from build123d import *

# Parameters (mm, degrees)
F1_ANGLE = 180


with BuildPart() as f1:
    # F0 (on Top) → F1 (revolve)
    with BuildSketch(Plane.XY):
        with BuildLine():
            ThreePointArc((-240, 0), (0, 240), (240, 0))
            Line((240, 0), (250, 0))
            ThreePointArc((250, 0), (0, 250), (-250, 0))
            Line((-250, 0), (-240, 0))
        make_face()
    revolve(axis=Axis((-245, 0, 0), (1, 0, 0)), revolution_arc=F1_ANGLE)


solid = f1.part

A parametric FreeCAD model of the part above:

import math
import FreeCAD as App
import Part
import Sketcher
Q = App.Units.Quantity

doc = App.newDocument("Part")
body = doc.addObject("PartDesign::Body", "Body")

# Sketch on XY plane
sketch1 = doc.addObject("Sketcher::SketchObject", "Sketch")
body.addObject(sketch1)
sketch1.AttachmentSupport = (doc.XY_Plane, [""])
sketch1.MapMode = "FlatFace"
sketch1.addGeometry(Part.ArcOfCircle(Part.Circle(App.Vector(0, 0, 0), App.Vector(0, 0, 1), 240), math.radians(0), math.radians(180)), False)
sketch1.addGeometry(Part.LineSegment(App.Vector(240, 0, 0), App.Vector(250, 0, 0)), False)
sketch1.addGeometry(Part.ArcOfCircle(Part.Circle(App.Vector(0, 0, 0), App.Vector(0, 0, 1), 250), math.radians(0), math.radians(180)), False)
sketch1.addGeometry(Part.LineSegment(App.Vector(-250, 0, 0), App.Vector(-240, 0, 0)), False)
sketch1.addConstraint(Sketcher.Constraint("Coincident", 0, 1, 1, 1))
sketch1.addConstraint(Sketcher.Constraint("Coincident", 1, 2, 2, 1))
sketch1.addConstraint(Sketcher.Constraint("Coincident", 2, 2, 3, 1))
sketch1.addConstraint(Sketcher.Constraint("Coincident", 3, 2, 0, 2))
sketch1.addConstraint(Sketcher.Constraint("Horizontal", 1))
sketch1.addConstraint(Sketcher.Constraint("Horizontal", 3))
sketch1.addConstraint(Sketcher.Constraint("Coincident", 0, 3, -1, 1))
sketch1.addConstraint(Sketcher.Constraint("Coincident", 2, 3, -1, 1))
sketch1.addConstraint(Sketcher.Constraint("PointOnObject", 0, 1, -1))
sketch1.addConstraint(Sketcher.Constraint("PointOnObject", 2, 2, -1))
sketch1.addConstraint(Sketcher.Constraint("Radius", 0, Q("240 mm")))
sketch1.addConstraint(Sketcher.Constraint("Radius", 2, Q("250 mm")))
revolution = doc.addObject("PartDesign::Revolution", "Revolution")
body.addObject(revolution)
revolution.Profile = sketch1
revolution.ReferenceAxis = (sketch1, ["H_Axis"])
revolution.Angle = 180

doc.recompute()
